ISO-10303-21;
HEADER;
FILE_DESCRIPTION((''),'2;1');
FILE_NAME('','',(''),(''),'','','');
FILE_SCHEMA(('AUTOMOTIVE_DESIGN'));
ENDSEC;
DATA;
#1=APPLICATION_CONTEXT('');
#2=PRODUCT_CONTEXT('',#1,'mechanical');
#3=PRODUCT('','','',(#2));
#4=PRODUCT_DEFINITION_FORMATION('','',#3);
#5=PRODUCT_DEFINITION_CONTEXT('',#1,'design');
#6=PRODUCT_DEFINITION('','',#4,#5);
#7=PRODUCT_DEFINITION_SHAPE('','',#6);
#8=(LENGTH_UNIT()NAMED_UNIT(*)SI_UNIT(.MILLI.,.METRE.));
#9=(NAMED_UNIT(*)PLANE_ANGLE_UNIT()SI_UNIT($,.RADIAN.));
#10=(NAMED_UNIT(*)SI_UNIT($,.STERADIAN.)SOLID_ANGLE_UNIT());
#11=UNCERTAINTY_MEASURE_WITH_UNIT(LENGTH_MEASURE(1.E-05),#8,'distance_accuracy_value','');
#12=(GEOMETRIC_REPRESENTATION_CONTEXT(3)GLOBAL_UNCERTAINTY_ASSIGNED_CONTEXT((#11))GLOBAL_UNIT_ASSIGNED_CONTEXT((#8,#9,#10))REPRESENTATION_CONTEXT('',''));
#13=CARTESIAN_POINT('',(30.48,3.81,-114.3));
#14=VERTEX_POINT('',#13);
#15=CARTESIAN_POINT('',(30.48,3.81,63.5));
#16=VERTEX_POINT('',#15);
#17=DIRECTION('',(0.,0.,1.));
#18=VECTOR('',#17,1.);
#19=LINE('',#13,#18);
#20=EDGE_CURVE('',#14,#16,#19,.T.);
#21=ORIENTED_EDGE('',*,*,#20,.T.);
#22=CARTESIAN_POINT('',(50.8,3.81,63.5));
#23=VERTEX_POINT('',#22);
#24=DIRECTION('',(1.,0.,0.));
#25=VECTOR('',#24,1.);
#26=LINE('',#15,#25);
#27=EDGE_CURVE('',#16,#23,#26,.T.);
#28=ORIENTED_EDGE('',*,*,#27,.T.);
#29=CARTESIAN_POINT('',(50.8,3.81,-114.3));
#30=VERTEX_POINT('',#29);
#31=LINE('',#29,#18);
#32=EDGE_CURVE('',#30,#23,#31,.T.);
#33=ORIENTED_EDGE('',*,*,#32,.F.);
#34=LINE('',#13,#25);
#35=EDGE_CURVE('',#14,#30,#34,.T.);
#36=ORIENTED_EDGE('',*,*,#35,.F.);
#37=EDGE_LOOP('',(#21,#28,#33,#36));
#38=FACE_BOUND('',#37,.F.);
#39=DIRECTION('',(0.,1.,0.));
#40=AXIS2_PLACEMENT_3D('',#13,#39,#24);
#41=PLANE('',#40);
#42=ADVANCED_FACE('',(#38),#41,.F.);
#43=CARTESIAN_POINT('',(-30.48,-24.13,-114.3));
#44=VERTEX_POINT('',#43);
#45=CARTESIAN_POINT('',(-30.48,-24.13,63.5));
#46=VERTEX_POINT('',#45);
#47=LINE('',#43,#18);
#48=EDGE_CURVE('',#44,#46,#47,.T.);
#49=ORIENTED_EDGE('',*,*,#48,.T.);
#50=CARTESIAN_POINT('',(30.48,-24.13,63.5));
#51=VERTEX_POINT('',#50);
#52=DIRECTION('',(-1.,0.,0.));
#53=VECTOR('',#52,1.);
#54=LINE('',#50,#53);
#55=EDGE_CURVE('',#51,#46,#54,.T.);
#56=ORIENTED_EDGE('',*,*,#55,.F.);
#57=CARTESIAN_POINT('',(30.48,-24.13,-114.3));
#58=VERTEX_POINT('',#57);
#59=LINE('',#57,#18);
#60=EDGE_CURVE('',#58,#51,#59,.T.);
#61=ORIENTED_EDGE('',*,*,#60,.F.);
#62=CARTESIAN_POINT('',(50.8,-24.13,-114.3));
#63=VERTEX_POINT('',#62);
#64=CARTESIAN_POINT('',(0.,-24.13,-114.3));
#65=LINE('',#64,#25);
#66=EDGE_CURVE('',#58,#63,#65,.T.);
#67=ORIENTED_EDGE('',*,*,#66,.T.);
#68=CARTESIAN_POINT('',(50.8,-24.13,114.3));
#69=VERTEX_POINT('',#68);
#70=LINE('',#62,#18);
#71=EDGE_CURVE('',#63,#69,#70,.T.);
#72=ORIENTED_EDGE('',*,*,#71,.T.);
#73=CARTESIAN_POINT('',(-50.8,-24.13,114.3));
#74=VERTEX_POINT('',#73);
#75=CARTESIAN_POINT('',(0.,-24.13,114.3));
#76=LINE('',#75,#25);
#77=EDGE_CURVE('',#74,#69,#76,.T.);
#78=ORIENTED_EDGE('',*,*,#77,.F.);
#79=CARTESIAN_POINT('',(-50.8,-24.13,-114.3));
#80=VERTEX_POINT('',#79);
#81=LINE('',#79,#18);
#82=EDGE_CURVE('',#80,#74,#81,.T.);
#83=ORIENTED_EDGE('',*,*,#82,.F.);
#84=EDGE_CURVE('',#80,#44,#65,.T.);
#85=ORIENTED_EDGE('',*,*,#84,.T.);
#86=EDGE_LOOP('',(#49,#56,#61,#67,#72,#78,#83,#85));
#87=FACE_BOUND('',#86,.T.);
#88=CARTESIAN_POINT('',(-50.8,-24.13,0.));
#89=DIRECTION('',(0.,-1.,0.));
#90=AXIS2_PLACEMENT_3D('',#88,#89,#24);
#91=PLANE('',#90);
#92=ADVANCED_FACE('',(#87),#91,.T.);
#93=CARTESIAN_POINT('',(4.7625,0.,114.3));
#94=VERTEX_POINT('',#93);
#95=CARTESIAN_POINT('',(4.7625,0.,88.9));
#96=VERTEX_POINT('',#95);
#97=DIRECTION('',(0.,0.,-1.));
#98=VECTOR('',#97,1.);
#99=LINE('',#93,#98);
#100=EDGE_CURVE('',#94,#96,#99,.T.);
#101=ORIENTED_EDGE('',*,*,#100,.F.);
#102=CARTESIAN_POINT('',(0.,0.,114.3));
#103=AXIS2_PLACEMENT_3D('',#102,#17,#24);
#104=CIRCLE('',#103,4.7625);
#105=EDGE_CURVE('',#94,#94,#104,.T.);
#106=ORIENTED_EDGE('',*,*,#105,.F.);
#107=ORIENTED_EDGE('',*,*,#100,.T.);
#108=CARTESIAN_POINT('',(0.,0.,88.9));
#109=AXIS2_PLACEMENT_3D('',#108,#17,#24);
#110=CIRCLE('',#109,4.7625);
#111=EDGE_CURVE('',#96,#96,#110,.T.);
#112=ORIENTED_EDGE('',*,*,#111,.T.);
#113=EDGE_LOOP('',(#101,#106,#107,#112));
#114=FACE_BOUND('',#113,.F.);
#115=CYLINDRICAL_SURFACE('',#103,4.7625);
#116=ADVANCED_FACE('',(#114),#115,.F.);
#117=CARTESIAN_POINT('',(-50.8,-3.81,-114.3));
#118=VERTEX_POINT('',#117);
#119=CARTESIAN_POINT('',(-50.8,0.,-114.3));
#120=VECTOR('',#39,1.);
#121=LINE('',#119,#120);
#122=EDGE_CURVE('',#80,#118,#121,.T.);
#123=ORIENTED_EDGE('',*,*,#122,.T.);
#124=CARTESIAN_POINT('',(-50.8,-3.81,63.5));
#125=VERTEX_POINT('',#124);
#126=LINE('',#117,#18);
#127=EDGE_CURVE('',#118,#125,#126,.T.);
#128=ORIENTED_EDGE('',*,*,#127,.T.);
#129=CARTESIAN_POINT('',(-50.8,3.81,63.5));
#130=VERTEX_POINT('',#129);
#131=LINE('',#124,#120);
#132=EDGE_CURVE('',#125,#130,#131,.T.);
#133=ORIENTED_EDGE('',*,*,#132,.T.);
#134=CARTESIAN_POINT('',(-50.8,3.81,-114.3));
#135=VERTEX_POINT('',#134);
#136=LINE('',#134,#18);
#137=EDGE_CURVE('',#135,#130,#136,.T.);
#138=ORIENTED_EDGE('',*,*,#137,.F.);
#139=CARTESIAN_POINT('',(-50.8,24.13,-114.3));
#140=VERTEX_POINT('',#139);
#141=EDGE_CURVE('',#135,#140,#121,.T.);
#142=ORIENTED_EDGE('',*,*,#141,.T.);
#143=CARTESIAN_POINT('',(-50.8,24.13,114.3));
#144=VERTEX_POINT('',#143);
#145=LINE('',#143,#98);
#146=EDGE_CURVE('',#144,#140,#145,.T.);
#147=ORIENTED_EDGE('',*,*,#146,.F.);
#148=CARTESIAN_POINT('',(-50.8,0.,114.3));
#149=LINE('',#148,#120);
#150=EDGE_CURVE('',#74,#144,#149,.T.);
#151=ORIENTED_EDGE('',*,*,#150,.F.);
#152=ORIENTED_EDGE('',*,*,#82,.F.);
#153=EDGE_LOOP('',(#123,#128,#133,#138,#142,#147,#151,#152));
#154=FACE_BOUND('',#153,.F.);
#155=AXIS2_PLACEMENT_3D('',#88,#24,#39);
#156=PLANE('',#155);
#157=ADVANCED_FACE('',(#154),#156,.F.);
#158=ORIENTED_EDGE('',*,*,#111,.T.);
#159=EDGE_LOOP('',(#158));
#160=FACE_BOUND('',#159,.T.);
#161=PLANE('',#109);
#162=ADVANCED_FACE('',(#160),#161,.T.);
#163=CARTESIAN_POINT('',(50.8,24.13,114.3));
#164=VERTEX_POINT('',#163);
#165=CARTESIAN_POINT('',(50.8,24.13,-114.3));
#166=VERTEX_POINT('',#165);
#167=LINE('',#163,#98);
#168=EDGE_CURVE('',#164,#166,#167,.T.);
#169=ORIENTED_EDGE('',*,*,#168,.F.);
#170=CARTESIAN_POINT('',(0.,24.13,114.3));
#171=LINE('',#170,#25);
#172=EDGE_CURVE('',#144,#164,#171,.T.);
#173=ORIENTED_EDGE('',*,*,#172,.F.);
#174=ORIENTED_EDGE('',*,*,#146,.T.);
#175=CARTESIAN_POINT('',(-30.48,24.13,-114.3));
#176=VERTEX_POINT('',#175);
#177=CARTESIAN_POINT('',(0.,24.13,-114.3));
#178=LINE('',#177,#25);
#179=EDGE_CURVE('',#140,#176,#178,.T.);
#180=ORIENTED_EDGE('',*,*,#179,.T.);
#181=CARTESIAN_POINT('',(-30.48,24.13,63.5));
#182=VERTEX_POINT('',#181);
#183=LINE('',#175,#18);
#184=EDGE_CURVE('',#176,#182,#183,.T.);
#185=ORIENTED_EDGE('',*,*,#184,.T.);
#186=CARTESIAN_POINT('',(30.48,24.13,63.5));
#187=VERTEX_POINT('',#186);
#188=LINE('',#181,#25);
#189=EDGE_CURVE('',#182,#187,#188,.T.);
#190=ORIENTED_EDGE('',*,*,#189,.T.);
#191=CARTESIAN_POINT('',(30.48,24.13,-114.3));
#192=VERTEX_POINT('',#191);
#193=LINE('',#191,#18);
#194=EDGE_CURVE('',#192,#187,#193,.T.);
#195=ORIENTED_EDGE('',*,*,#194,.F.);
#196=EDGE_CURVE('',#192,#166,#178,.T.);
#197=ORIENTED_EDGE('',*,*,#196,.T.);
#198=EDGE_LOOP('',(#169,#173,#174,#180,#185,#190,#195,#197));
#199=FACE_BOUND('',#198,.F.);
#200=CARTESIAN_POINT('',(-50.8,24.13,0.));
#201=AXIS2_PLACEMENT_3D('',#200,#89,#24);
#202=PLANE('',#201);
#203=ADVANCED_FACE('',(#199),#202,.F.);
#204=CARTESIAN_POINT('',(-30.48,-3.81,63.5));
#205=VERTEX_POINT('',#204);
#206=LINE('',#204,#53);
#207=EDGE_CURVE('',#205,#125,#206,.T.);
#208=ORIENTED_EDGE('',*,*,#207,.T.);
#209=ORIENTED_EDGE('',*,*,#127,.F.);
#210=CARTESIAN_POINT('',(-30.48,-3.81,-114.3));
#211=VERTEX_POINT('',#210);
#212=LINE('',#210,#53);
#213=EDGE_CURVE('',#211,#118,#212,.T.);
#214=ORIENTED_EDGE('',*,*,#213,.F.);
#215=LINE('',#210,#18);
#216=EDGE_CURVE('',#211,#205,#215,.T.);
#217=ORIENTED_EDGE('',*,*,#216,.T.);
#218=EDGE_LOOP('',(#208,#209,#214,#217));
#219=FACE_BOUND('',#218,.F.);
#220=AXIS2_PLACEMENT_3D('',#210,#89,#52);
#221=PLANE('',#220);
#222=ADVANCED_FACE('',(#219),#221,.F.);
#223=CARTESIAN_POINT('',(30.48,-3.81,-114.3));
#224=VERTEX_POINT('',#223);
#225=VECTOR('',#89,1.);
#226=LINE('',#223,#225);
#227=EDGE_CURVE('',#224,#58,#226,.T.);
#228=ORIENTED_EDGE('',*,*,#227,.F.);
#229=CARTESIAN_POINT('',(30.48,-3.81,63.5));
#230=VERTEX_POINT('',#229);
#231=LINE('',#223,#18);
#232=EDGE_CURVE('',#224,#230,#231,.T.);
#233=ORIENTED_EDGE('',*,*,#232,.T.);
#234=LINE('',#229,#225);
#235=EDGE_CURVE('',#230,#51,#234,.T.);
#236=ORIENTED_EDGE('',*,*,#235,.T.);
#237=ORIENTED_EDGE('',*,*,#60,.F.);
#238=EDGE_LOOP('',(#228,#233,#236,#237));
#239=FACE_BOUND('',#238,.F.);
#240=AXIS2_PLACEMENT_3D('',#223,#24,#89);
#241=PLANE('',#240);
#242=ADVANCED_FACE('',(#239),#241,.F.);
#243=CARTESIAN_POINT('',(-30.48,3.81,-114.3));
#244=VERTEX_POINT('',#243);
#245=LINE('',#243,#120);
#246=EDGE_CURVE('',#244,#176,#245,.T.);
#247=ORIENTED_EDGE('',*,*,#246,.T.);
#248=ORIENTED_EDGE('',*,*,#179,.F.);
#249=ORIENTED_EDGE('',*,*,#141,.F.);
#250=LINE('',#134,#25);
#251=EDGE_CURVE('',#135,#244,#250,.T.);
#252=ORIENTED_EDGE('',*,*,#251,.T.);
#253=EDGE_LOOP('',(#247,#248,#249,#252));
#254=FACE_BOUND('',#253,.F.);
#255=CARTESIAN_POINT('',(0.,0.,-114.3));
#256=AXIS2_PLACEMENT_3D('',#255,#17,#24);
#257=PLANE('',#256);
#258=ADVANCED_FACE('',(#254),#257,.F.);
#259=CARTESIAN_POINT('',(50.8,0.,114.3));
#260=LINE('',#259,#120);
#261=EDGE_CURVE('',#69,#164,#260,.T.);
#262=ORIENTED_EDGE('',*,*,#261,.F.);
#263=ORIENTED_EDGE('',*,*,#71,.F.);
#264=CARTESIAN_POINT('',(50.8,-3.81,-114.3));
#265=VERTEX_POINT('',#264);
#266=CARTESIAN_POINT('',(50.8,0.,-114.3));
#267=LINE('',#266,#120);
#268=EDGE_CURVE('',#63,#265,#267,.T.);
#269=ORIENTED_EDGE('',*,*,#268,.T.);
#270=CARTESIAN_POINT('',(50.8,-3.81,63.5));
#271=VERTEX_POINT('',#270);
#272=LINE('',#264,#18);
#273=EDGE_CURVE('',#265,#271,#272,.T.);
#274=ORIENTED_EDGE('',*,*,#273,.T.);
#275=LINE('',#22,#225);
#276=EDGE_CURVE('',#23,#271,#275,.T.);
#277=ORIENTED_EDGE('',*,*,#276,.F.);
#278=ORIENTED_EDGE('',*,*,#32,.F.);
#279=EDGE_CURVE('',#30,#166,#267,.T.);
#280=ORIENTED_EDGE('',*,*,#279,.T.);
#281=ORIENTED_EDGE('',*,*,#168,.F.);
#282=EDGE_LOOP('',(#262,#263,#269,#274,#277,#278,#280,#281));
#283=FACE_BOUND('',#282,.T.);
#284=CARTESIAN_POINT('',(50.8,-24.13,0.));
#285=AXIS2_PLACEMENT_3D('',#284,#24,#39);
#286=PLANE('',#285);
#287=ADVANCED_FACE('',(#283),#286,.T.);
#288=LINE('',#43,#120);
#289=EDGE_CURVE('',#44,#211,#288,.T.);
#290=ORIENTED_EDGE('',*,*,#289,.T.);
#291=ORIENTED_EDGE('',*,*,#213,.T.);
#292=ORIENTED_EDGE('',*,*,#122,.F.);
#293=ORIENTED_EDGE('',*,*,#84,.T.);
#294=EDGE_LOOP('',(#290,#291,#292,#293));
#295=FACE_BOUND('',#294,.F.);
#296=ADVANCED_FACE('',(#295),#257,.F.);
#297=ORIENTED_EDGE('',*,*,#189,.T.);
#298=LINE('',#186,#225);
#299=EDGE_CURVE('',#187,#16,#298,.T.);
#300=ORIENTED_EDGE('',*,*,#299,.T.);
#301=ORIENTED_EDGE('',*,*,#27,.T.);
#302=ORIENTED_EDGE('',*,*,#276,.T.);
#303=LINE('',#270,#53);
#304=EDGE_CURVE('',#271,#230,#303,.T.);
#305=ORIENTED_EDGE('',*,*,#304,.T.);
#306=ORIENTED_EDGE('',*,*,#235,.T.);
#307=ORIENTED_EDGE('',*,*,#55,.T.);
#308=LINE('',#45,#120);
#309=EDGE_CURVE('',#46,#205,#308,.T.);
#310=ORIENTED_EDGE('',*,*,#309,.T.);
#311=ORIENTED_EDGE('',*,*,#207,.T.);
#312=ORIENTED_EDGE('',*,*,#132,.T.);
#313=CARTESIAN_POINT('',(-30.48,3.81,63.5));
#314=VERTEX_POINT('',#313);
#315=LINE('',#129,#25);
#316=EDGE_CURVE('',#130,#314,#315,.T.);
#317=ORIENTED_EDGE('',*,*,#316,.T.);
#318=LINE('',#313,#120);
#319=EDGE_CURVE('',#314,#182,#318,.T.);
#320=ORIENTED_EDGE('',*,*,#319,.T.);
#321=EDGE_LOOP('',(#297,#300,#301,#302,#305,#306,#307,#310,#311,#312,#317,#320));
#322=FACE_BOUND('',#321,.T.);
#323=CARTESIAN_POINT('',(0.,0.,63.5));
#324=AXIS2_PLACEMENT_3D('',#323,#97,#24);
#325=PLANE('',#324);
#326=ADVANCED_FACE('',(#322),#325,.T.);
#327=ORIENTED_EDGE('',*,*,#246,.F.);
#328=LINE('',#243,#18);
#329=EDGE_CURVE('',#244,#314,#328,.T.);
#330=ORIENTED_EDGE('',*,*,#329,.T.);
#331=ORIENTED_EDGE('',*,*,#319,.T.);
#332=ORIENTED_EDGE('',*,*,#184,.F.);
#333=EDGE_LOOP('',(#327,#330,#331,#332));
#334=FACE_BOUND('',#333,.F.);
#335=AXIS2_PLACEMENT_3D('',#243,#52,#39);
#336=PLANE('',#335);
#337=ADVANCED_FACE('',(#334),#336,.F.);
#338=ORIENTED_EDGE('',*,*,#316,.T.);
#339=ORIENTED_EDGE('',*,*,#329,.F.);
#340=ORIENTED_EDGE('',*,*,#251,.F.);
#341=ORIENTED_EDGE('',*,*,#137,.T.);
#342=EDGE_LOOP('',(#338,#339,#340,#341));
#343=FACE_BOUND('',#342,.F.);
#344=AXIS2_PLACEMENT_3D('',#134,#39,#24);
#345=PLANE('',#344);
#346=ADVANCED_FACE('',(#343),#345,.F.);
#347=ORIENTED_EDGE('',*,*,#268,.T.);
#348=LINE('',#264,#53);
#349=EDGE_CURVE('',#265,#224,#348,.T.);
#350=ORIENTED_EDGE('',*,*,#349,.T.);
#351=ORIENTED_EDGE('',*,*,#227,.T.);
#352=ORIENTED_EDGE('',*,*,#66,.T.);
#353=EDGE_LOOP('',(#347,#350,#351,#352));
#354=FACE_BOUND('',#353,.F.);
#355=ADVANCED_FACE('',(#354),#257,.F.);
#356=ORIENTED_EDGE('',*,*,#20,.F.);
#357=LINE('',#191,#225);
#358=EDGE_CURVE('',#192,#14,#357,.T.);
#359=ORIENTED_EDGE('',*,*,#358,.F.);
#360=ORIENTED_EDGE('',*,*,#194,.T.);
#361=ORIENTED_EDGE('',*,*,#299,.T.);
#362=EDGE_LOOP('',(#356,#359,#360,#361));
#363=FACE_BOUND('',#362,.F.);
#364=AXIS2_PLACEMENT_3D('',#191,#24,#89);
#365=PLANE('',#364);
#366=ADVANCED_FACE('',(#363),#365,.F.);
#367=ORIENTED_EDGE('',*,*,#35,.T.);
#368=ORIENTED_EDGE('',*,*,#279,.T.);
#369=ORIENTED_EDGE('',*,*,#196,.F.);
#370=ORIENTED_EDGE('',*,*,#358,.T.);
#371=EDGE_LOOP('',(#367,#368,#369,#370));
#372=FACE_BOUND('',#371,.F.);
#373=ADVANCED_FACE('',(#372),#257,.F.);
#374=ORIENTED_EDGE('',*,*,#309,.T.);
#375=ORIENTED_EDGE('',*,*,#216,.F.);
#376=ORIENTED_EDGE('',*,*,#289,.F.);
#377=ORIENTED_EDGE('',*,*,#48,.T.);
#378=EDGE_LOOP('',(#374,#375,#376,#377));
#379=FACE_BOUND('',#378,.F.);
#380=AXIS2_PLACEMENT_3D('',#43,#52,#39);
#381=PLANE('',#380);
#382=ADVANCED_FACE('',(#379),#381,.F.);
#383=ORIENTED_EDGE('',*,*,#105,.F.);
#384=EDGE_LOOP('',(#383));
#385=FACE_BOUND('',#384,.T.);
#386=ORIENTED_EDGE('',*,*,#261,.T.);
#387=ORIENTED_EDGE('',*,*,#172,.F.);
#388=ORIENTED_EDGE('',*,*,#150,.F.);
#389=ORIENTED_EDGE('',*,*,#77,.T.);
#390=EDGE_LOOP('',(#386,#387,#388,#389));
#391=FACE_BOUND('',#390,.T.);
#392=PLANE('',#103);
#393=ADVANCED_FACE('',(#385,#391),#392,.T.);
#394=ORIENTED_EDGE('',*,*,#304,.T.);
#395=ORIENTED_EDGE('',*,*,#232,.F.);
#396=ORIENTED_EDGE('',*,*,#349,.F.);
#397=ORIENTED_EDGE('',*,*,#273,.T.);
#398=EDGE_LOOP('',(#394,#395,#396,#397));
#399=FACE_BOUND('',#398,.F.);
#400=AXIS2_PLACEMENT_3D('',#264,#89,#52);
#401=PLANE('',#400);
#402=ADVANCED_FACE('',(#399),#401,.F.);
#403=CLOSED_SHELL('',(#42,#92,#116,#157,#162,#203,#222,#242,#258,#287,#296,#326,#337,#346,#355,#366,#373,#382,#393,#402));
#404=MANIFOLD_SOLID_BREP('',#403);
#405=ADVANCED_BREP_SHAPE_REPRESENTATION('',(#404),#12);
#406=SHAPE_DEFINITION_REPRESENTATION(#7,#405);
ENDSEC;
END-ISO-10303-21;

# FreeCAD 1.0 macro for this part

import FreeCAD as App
import Part
import Sketcher
Q = App.Units.Quantity


def add_polygon(sketch, points):
    """Adds a closed chain of lines whose ends are joined by coincident constraints."""
    first, n = sketch.GeometryCount, len(points)
    for a, b in zip(points, points[1:] + points[:1]):
        sketch.addGeometry(Part.LineSegment(App.Vector(*a, 0), App.Vector(*b, 0)), False)
    for i in range(n):
        sketch.addConstraint(Sketcher.Constraint("Coincident", first + i, 2, first + (i + 1) % n, 1))

doc = App.newDocument("Part")
body = doc.addObject("PartDesign::Body", "Body")

# Sketch on XY plane
sketch1 = body.newObject("Sketcher::SketchObject", "Sketch")
sketch1.AttachmentSupport = (doc.getObject("XY_Plane"), [""])
sketch1.MapMode = "FlatFace"
add_polygon(sketch1, [(-51, 24), (-51, -24), (51, -24), (51, 24)])  # lines 0-3
sketch1.addConstraint([
    Sketcher.Constraint("Vertical", 0),
    Sketcher.Constraint("Horizontal", 1),
    Sketcher.Constraint("Vertical", 2),
    Sketcher.Constraint("Horizontal", 3),
    Sketcher.Constraint("Symmetric", 0, 2, 2, 2, -1, 1),
    Sketcher.Constraint("DistanceX", 1, 1, 1, 2, Q("4 in")),
    Sketcher.Constraint("DistanceY", 0, 2, 0, 1, Q("1.9 in")),
])
pad1 = body.newObject("PartDesign::Pad", "Pad")
pad1.Profile = sketch1
pad1.Length = Q("9 in")
pad1.Midplane = True

# Sketch on XY plane
sketch2 = body.newObject("Sketcher::SketchObject", "Sketch001")
sketch2.AttachmentSupport = (doc.getObject("XY_Plane"), [""])
sketch2.MapMode = "FlatFace"
sketch2.AttachmentOffset = App.Placement(App.Vector(0, 0, -4.5 * 25.4), App.Rotation())
add_polygon(sketch2, [(30, -24), (-30, -24), (-30, -4), (-51, -4), (-51, 4), (-30, 4), (-30, 24), (30, 24), (30, 4), (51, 4), (51, -4), (30, -4)])  # lines 0-11
sketch2.addConstraint([
    Sketcher.Constraint("Horizontal", 0),
    Sketcher.Constraint("Vertical", 1),
    Sketcher.Constraint("Horizontal", 2),
    Sketcher.Constraint("Vertical", 3),
    Sketcher.Constraint("Horizontal", 4),
    Sketcher.Constraint("Vertical", 5),
    Sketcher.Constraint("Horizontal", 6),
    Sketcher.Constraint("Vertical", 7),
    Sketcher.Constraint("Horizontal", 8),
    Sketcher.Constraint("Vertical", 9),
    Sketcher.Constraint("Horizontal", 10),
    Sketcher.Constraint("Vertical", 11),
    Sketcher.Constraint("Symmetric", 0, 2, 6, 2, -1, 1),
    Sketcher.Constraint("Symmetric", 2, 2, 8, 2, -1, 1),
    Sketcher.Constraint("Symmetric", 4, 2, 10, 2, -1, 1),
    Sketcher.Constraint("Symmetric", 4, 2, 7, 2, -2),
    Sketcher.Constraint("Equal", 10, 1),
    Sketcher.Constraint("DistanceX", 0, 2, 0, 1, Q("2.4 in")),
    Sketcher.Constraint("DistanceX", 2, 2, 2, 1, Q("0.8 in")),
    Sketcher.Constraint("DistanceY", 3, 1, 3, 2, Q("0.3 in")),
])
pocket1 = body.newObject("PartDesign::Pocket", "Pocket")
pocket1.Profile = sketch2
pocket1.Length = Q("7 in")
pocket1.Reversed = True

# Sketch on XY plane
sketch3 = body.newObject("Sketcher::SketchObject", "Sketch002")
sketch3.AttachmentSupport = (doc.getObject("XY_Plane"), [""])
sketch3.MapMode = "FlatFace"
sketch3.AttachmentOffset = App.Placement(App.Vector(0, 0, 4.5 * 25.4), App.Rotation())
sketch3.addGeometry(Part.Circle(App.Vector(0, 0, 0), App.Vector(0, 0, 1), 4.8), False)
sketch3.addConstraint([
    Sketcher.Constraint("Coincident", 0, 3, -1, 1),
    Sketcher.Constraint("Diameter", 0, Q("0.375 in")),
])
pocket2 = body.newObject("PartDesign::Pocket", "Pocket001")
pocket2.Profile = sketch3
pocket2.Length = Q("1 in")

doc.recompute()
